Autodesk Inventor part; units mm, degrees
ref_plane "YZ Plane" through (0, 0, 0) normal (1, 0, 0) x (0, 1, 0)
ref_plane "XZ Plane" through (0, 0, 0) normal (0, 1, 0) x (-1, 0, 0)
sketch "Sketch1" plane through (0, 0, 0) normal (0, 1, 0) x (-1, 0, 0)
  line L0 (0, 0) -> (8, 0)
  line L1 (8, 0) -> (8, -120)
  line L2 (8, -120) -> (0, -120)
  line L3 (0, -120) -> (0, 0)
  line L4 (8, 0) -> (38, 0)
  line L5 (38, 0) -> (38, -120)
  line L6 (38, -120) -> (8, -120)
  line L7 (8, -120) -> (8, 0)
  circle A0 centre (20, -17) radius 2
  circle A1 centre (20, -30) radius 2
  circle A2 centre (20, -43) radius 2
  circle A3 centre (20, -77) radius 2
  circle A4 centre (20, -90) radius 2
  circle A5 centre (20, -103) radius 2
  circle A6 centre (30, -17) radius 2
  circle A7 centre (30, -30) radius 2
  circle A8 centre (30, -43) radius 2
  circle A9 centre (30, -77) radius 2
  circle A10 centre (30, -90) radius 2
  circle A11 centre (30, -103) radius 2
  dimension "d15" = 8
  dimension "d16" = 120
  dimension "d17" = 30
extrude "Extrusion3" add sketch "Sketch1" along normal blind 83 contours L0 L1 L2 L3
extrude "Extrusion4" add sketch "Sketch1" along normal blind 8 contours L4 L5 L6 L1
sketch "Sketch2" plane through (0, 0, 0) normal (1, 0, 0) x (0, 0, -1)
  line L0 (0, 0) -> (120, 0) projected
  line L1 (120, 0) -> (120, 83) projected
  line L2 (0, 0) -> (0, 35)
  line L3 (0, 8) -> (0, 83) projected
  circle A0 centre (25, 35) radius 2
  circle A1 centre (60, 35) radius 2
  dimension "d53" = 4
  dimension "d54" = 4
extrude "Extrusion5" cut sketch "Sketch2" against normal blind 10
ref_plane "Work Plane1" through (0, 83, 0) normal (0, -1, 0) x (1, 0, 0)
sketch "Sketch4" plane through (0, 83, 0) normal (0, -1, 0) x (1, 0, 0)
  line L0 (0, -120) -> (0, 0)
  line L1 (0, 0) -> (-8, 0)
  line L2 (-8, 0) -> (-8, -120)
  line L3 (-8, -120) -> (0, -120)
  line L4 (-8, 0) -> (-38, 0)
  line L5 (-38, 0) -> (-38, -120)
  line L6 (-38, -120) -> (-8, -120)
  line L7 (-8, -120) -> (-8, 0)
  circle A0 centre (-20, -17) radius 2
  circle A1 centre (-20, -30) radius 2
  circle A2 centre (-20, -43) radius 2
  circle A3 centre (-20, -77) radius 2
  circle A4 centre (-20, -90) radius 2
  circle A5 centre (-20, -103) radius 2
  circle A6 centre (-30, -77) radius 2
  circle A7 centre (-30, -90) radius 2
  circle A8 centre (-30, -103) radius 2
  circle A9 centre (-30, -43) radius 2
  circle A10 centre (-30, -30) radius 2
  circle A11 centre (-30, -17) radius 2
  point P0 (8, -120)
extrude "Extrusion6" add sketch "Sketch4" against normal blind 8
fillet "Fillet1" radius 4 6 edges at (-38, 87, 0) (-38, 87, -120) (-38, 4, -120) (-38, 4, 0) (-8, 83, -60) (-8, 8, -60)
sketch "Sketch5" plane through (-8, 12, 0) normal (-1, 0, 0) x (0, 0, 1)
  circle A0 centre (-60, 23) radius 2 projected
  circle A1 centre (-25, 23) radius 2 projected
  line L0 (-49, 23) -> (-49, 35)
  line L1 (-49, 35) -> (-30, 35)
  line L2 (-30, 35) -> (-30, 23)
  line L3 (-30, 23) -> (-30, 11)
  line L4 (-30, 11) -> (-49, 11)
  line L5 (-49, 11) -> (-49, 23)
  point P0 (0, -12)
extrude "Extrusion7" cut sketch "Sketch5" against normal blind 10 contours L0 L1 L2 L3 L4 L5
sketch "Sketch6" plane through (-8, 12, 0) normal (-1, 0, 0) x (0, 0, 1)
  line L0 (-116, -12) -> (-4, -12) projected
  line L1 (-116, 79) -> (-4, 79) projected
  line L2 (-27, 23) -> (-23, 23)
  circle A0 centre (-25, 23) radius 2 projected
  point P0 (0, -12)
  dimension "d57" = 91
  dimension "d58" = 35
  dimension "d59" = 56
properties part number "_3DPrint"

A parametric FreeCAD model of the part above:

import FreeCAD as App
import Part
import Sketcher
Q = App.Units.Quantity


def edges_at(feature, points):
    """Names of the edges that pass closest to the given points."""
    edges = feature.Shape.Edges
    near = lambda p: min(range(len(edges)), key=lambda i: edges[i].distToShape(Part.Vertex(*p))[0])
    return sorted({f"Edge{near(p) + 1}" for p in points})

doc = App.newDocument("Part")
params = doc.addObject("Spreadsheet::Sheet", "Params")
for row, (alias, value) in enumerate([
    ("sketch1_width", "8 mm"),
    ("sketch1_height", "120 mm"),
    ("pad1_length", "83 mm"),
    ("sketch2_width", "30 mm"),
    ("sketch2_height", "120 mm"),
    ("sketch2_diameter", "4 mm"),
    ("pad2_length", "8 mm"),
    ("sketch3_diameter", "4 mm"),
    ("pocket1_length", "10 mm"),
    ("sketch4_diameter", "4 mm"),
    ("sketch4_width", "38 mm"),
    ("sketch4_height", "120 mm"),
    ("pad3_length", "8 mm"),
    ("fillet_radius", "4 mm"),
    ("sketch5_width", "24 mm"),
    ("sketch5_height", "19 mm"),
    ("pocket2_length", "10 mm"),
], start=1):
    params.set(f"A{row}", alias)
    params.set(f"B{row}", "=" + value)
    params.setAlias(f"B{row}", alias)

body = doc.addObject("PartDesign::Body", "Body")

# Sketch on XZ plane
sketch1 = doc.addObject("Sketcher::SketchObject", "Sketch")
body.addObject(sketch1)
sketch1.AttachmentSupport = (doc.XZ_Plane, [""])
sketch1.MapMode = "FlatFace"
sketch1.addGeometry(Part.LineSegment(App.Vector(-8, 0, 0), App.Vector(0, 0, 0)), False)
sketch1.addGeometry(Part.LineSegment(App.Vector(0, 0, 0), App.Vector(0, -120, 0)), False)
sketch1.addGeometry(Part.LineSegment(App.Vector(0, -120, 0), App.Vector(-8, -120, 0)), False)
sketch1.addGeometry(Part.LineSegment(App.Vector(-8, -120, 0), App.Vector(-8, 0, 0)), False)
sketch1.addConstraint(Sketcher.Constraint("Coincident", 0, 2, 1, 1))
sketch1.addConstraint(Sketcher.Constraint("Coincident", 1, 2, 2, 1))
sketch1.addConstraint(Sketcher.Constraint("Coincident", 2, 2, 3, 1))
sketch1.addConstraint(Sketcher.Constraint("Coincident", 3, 2, 0, 1))
sketch1.addConstraint(Sketcher.Constraint("Horizontal", 0))
sketch1.addConstraint(Sketcher.Constraint("Vertical", 1))
sketch1.addConstraint(Sketcher.Constraint("Horizontal", 2))
sketch1.addConstraint(Sketcher.Constraint("Vertical", 3))
sketch1.addConstraint(Sketcher.Constraint("Coincident", 0, 2, -1, 1))
sketch1.addConstraint(Sketcher.Constraint("DistanceX", 0, 1, 0, 2, Q("8 mm")))
sketch1.addConstraint(Sketcher.Constraint("DistanceY", 1, 2, 1, 1, Q("120 mm")))
sketch1.setExpression("Constraints[9]", "Params.sketch1_width")
sketch1.setExpression("Constraints[10]", "Params.sketch1_height")
pad1 = doc.addObject("PartDesign::Pad", "Pad")
body.addObject(pad1)
pad1.Profile = sketch1
pad1.setExpression("Length", "Params.pad1_length")
pad1.Reversed = True

# Sketch on XZ plane
sketch2 = doc.addObject("Sketcher::SketchObject", "Sketch001")
body.addObject(sketch2)
sketch2.AttachmentSupport = (doc.XZ_Plane, [""])
sketch2.MapMode = "FlatFace"
sketch2.addGeometry(Part.LineSegment(App.Vector(-38, 0, 0), App.Vector(-8, 0, 0)), False)
sketch2.addGeometry(Part.LineSegment(App.Vector(-8, 0, 0), App.Vector(-8, -120, 0)), False)
sketch2.addGeometry(Part.LineSegment(App.Vector(-8, -120, 0), App.Vector(-38, -120, 0)), False)
sketch2.addGeometry(Part.LineSegment(App.Vector(-38, -120, 0), App.Vector(-38, 0, 0)), False)
sketch2.addGeometry(Part.Circle(App.Vector(-20, -103, 0), App.Vector(0, 0, 1), 2), False)
sketch2.addGeometry(Part.Circle(App.Vector(-30, -103, 0), App.Vector(0, 0, 1), 2), False)
sketch2.addGeometry(Part.Circle(App.Vector(-20, -90, 0), App.Vector(0, 0, 1), 2), False)
sketch2.addGeometry(Part.Circle(App.Vector(-20, -77, 0), App.Vector(0, 0, 1), 2), False)
sketch2.addGeometry(Part.Circle(App.Vector(-30, -90, 0), App.Vector(0, 0, 1), 2), False)
sketch2.addGeometry(Part.Circle(App.Vector(-30, -77, 0), App.Vector(0, 0, 1), 2), False)
sketch2.addGeometry(Part.Circle(App.Vector(-20, -43, 0), App.Vector(0, 0, 1), 2), False)
sketch2.addGeometry(Part.Circle(App.Vector(-30, -43, 0), App.Vector(0, 0, 1), 2), False)
sketch2.addGeometry(Part.Circle(App.Vector(-20, -30, 0), App.Vector(0, 0, 1), 2), False)
sketch2.addGeometry(Part.Circle(App.Vector(-20, -17, 0), App.Vector(0, 0, 1), 2), False)
sketch2.addGeometry(Part.Circle(App.Vector(-30, -30, 0), App.Vector(0, 0, 1), 2), False)
sketch2.addGeometry(Part.Circle(App.Vector(-30, -17, 0), App.Vector(0, 0, 1), 2), False)
sketch2.addConstraint(Sketcher.Constraint("Coincident", 0, 2, 1, 1))
sketch2.addConstraint(Sketcher.Constraint("Coincident", 1, 2, 2, 1))
sketch2.addConstraint(Sketcher.Constraint("Coincident", 2, 2, 3, 1))
sketch2.addConstraint(Sketcher.Constraint("Coincident", 3, 2, 0, 1))
sketch2.addConstraint(Sketcher.Constraint("Horizontal", 0))
sketch2.addConstraint(Sketcher.Constraint("Vertical", 1))
sketch2.addConstraint(Sketcher.Constraint("Horizontal", 2))
sketch2.addConstraint(Sketcher.Constraint("Vertical", 3))
sketch2.addConstraint(Sketcher.Constraint("Equal", 4, 5))
sketch2.addConstraint(Sketcher.Constraint("Equal", 5, 6))
sketch2.addConstraint(Sketcher.Constraint("Equal", 6, 7))
sketch2.addConstraint(Sketcher.Constraint("Equal", 7, 8))
sketch2.addConstraint(Sketcher.Constraint("Equal", 8, 9))
sketch2.addConstraint(Sketcher.Constraint("Equal", 9, 10))
sketch2.addConstraint(Sketcher.Constraint("Equal", 10, 11))
sketch2.addConstraint(Sketcher.Constraint("Equal", 11, 12))
sketch2.addConstraint(Sketcher.Constraint("Equal", 12, 13))
sketch2.addConstraint(Sketcher.Constraint("Equal", 13, 14))
sketch2.addConstraint(Sketcher.Constraint("Equal", 14, 15))
sketch2.addConstraint(Sketcher.Constraint("PointOnObject", 0, 2, -1))
sketch2.addConstraint(Sketcher.Constraint("Horizontal", 4, 3, 5, 3))
sketch2.addConstraint(Sketcher.Constraint("Horizontal", 6, 3, 8, 3))
sketch2.addConstraint(Sketcher.Constraint("Horizontal", 7, 3, 9, 3))
sketch2.addConstraint(Sketcher.Constraint("Horizontal", 10, 3, 11, 3))
sketch2.addConstraint(Sketcher.Constraint("Horizontal", 12, 3, 14, 3))
sketch2.addConstraint(Sketcher.Constraint("Horizontal", 13, 3, 15, 3))
sketch2.addConstraint(Sketcher.Constraint("Vertical", 4, 3, 6, 3))
sketch2.addConstraint(Sketcher.Constraint("Vertical", 6, 3, 7, 3))
sketch2.addConstraint(Sketcher.Constraint("Vertical", 5, 3, 8, 3))
sketch2.addConstraint(Sketcher.Constraint("Vertical", 8, 3, 9, 3))
sketch2.addConstraint(Sketcher.Constraint("Vertical", 7, 3, 10, 3))
sketch2.addConstraint(Sketcher.Constraint("Vertical", 9, 3, 11, 3))
sketch2.addConstraint(Sketcher.Constraint("Vertical", 10, 3, 12, 3))
sketch2.addConstraint(Sketcher.Constraint("Vertical", 12, 3, 13, 3))
sketch2.addConstraint(Sketcher.Constraint("Vertical", 11, 3, 14, 3))
sketch2.addConstraint(Sketcher.Constraint("Vertical", 14, 3, 15, 3))
sketch2.addConstraint(Sketcher.Constraint("DistanceX", 0, 1, 0, 2, Q("30 mm")))
sketch2.addConstraint(Sketcher.Constraint("DistanceY", 1, 2, 1, 1, Q("120 mm")))
sketch2.addConstraint(Sketcher.Constraint("Diameter", 4, Q("4 mm")))
sketch2.addConstraint(Sketcher.Constraint("DistanceX", 5, 3, -1, 1, Q("30 mm")))
sketch2.addConstraint(Sketcher.Constraint("DistanceY", 12, 3, -1, 1, Q("30 mm")))
sketch2.addConstraint(Sketcher.Constraint("DistanceX", 0, 2, -1, 1, Q("8 mm")))
sketch2.addConstraint(Sketcher.Constraint("DistanceY", 1, 2, 6, 3, Q("30 mm")))
sketch2.addConstraint(Sketcher.Constraint("DistanceX", 4, 3, -1, 1, Q("20 mm")))
sketch2.addConstraint(Sketcher.Constraint("DistanceY", 4, 3, -1, 1, Q("103 mm")))
sketch2.addConstraint(Sketcher.Constraint("DistanceY", 7, 3, -1, 1, Q("77 mm")))
sketch2.addConstraint(Sketcher.Constraint("DistanceY", 10, 3, -1, 1, Q("43 mm")))
sketch2.addConstraint(Sketcher.Constraint("DistanceY", 13, 3, -1, 1, Q("17 mm")))
sketch2.setExpression("Constraints[36]", "Params.sketch2_width")
sketch2.setExpression("Constraints[37]", "Params.sketch2_height")
sketch2.setExpression("Constraints[38]", "Params.sketch2_diameter")
pad2 = doc.addObject("PartDesign::Pad", "Pad001")
body.addObject(pad2)
pad2.Profile = sketch2
pad2.setExpression("Length", "Params.pad2_length")
pad2.Reversed = True

# Sketch on YZ plane
sketch3 = doc.addObject("Sketcher::SketchObject", "Sketch002")
body.addObject(sketch3)
sketch3.AttachmentSupport = (doc.YZ_Plane, [""])
sketch3.MapMode = "FlatFace"
sketch3.addGeometry(Part.Circle(App.Vector(35, -25, 0), App.Vector(0, 0, 1), 2), False)
sketch3.addGeometry(Part.Circle(App.Vector(35, -60, 0), App.Vector(0, 0, 1), 2), False)
sketch3.addConstraint(Sketcher.Constraint("Equal", 0, 1))
sketch3.addConstraint(Sketcher.Constraint("Vertical", 0, 3, 1, 3))
sketch3.addConstraint(Sketcher.Constraint("Diameter", 0, Q("4 mm")))
sketch3.addConstraint(Sketcher.Constraint("DistanceX", -1, 1, 0, 3, Q("35 mm")))
sketch3.addConstraint(Sketcher.Constraint("DistanceY", 0, 3, -1, 1, Q("25 mm")))
sketch3.addConstraint(Sketcher.Constraint("DistanceY", 1, 3, -1, 1, Q("60 mm")))
sketch3.setExpression("Constraints[2]", "Params.sketch3_diameter")
pocket1 = doc.addObject("PartDesign::Pocket", "Pocket")
body.addObject(pocket1)
pocket1.Profile = sketch3
pocket1.setExpression("Length", "Params.pocket1_length")

# Sketch on XZ plane
sketch4 = doc.addObject("Sketcher::SketchObject", "Sketch003")
body.addObject(sketch4)
sketch4.AttachmentSupport = (doc.XZ_Plane, [""])
sketch4.MapMode = "FlatFace"
sketch4.AttachmentOffset = App.Placement(App.Vector(0, 0, -83), App.Rotation())
sketch4.addGeometry(Part.LineSegment(App.Vector(0, -120, 0), App.Vector(0, 0, 0)), False)
sketch4.addGeometry(Part.LineSegment(App.Vector(0, 0, 0), App.Vector(-38, 0, 0)), False)
sketch4.addGeometry(Part.LineSegment(App.Vector(-38, 0, 0), App.Vector(-38, -120, 0)), False)
sketch4.addGeometry(Part.LineSegment(App.Vector(-38, -120, 0), App.Vector(0, -120, 0)), False)
sketch4.addGeometry(Part.Circle(App.Vector(-20, -17, 0), App.Vector(0, 0, 1), 2), False)
sketch4.addGeometry(Part.Circle(App.Vector(-30, -103, 0), App.Vector(0, 0, 1), 2), False)
sketch4.addGeometry(Part.Circle(App.Vector(-20, -103, 0), App.Vector(0, 0, 1), 2), False)
sketch4.addGeometry(Part.Circle(App.Vector(-30, -90, 0), App.Vector(0, 0, 1), 2), False)
sketch4.addGeometry(Part.Circle(App.Vector(-30, -77, 0), App.Vector(0, 0, 1), 2), False)
sketch4.addGeometry(Part.Circle(App.Vector(-20, -90, 0), App.Vector(0, 0, 1), 2), False)
sketch4.addGeometry(Part.Circle(App.Vector(-20, -77, 0), App.Vector(0, 0, 1), 2), False)
sketch4.addGeometry(Part.Circle(App.Vector(-30, -43, 0), App.Vector(0, 0, 1), 2), False)
sketch4.addGeometry(Part.Circle(App.Vector(-20, -43, 0), App.Vector(0, 0, 1), 2), False)
sketch4.addGeometry(Part.Circle(App.Vector(-30, -30, 0), App.Vector(0, 0, 1), 2), False)
sketch4.addGeometry(Part.Circle(App.Vector(-30, -17, 0), App.Vector(0, 0, 1), 2), False)
sketch4.addGeometry(Part.Circle(App.Vector(-20, -30, 0), App.Vector(0, 0, 1), 2), False)
sketch4.addConstraint(Sketcher.Constraint("Coincident", 0, 2, 1, 1))
sketch4.addConstraint(Sketcher.Constraint("Coincident", 1, 2, 2, 1))
sketch4.addConstraint(Sketcher.Constraint("Coincident", 2, 2, 3, 1))
sketch4.addConstraint(Sketcher.Constraint("Coincident", 3, 2, 0, 1))
sketch4.addConstraint(Sketcher.Constraint("Vertical", 0))
sketch4.addConstraint(Sketcher.Constraint("Horizontal", 1))
sketch4.addConstraint(Sketcher.Constraint("Vertical", 2))
sketch4.addConstraint(Sketcher.Constraint("Horizontal", 3))
sketch4.addConstraint(Sketcher.Constraint("Coincident", 0, 2, -1, 1))
sketch4.addConstraint(Sketcher.Constraint("Equal", 4, 5))
sketch4.addConstraint(Sketcher.Constraint("Equal", 5, 6))
sketch4.addConstraint(Sketcher.Constraint("Equal", 6, 7))
sketch4.addConstraint(Sketcher.Constraint("Equal", 7, 8))
sketch4.addConstraint(Sketcher.Constraint("Equal", 8, 9))
sketch4.addConstraint(Sketcher.Constraint("Equal", 9, 10))
sketch4.addConstraint(Sketcher.Constraint("Equal", 10, 11))
sketch4.addConstraint(Sketcher.Constraint("Equal", 11, 12))
sketch4.addConstraint(Sketcher.Constraint("Equal", 12, 13))
sketch4.addConstraint(Sketcher.Constraint("Equal", 13, 14))
sketch4.addConstraint(Sketcher.Constraint("Equal", 14, 15))
sketch4.addConstraint(Sketcher.Constraint("Horizontal", 5, 3, 6, 3))
sketch4.addConstraint(Sketcher.Constraint("Horizontal", 7, 3, 9, 3))
sketch4.addConstraint(Sketcher.Constraint("Horizontal", 8, 3, 10, 3))
sketch4.addConstraint(Sketcher.Constraint("Horizontal", 11, 3, 12, 3))
sketch4.addConstraint(Sketcher.Constraint("Horizontal", 4, 3, 14, 3))
sketch4.addConstraint(Sketcher.Constraint("Horizontal", 13, 3, 15, 3))
sketch4.addConstraint(Sketcher.Constraint("Vertical", 4, 3, 6, 3))
sketch4.addConstraint(Sketcher.Constraint("Vertical", 5, 3, 7, 3))
sketch4.addConstraint(Sketcher.Constraint("Vertical", 7, 3, 8, 3))
sketch4.addConstraint(Sketcher.Constraint("Vertical", 6, 3, 9, 3))
sketch4.addConstraint(Sketcher.Constraint("Vertical", 9, 3, 10, 3))
sketch4.addConstraint(Sketcher.Constraint("Vertical", 8, 3, 11, 3))
sketch4.addConstraint(Sketcher.Constraint("Vertical", 10, 3, 12, 3))
sketch4.addConstraint(Sketcher.Constraint("Vertical", 11, 3, 13, 3))
sketch4.addConstraint(Sketcher.Constraint("Vertical", 13, 3, 14, 3))
sketch4.addConstraint(Sketcher.Constraint("Vertical", 12, 3, 15, 3))
sketch4.addConstraint(Sketcher.Constraint("Diameter", 4, Q("4 mm")))
sketch4.addConstraint(Sketcher.Constraint("DistanceX", 1, 2, 1, 1, Q("38 mm")))
sketch4.addConstraint(Sketcher.Constraint("DistanceY", 0, 1, 0, 2, Q("120 mm")))
sketch4.addConstraint(Sketcher.Constraint("DistanceX", 4, 3, -1, 1, Q("20 mm")))
sketch4.addConstraint(Sketcher.Constraint("DistanceY", 4, 3, -1, 1, Q("17 mm")))
sketch4.addConstraint(Sketcher.Constraint("DistanceX", 5, 3, -1, 1, Q("30 mm")))
sketch4.addConstraint(Sketcher.Constraint("DistanceY", 5, 3, -1, 1, Q("103 mm")))
sketch4.addConstraint(Sketcher.Constraint("DistanceY", 7, 3, -1, 1, Q("90 mm")))
sketch4.addConstraint(Sketcher.Constraint("DistanceY", 8, 3, -1, 1, Q("77 mm")))
sketch4.addConstraint(Sketcher.Constraint("DistanceY", 11, 3, -1, 1, Q("43 mm")))
sketch4.addConstraint(Sketcher.Constraint("DistanceY", 13, 3, -1, 1, Q("30 mm")))
sketch4.setExpression("Constraints[36]", "Params.sketch4_diameter")
sketch4.setExpression("Constraints[37]", "Params.sketch4_width")
sketch4.setExpression("Constraints[38]", "Params.sketch4_height")
pad3 = doc.addObject("PartDesign::Pad", "Pad002")
body.addObject(pad3)
pad3.Profile = sketch4
pad3.setExpression("Length", "Params.pad3_length")
pad3.Reversed = True
doc.recompute()

fillet = doc.addObject("PartDesign::Fillet", "Fillet")
body.addObject(fillet)
fillet.Base = (pad3, edges_at(pad3, [
    (-38, 87, 0),
    (-38, 87, -120),
    (-38, 4, -120),
    (-38, 4, 0),
    (-8, 83, -60),
    (-8, 8, -60),
]))
fillet.setExpression("Radius", "Params.fillet_radius")

# Sketch on YZ plane
sketch5 = doc.addObject("Sketcher::SketchObject", "Sketch004")
body.addObject(sketch5)
sketch5.AttachmentSupport = (doc.YZ_Plane, [""])
sketch5.MapMode = "FlatFace"
sketch5.AttachmentOffset = App.Placement(App.Vector(0, 0, -8), App.Rotation())
sketch5.addGeometry(Part.LineSegment(App.Vector(47, -49, 0), App.Vector(23, -49, 0)), False)
sketch5.addGeometry(Part.LineSegment(App.Vector(23, -49, 0), App.Vector(23, -30, 0)), False)
sketch5.addGeometry(Part.LineSegment(App.Vector(23, -30, 0), App.Vector(47, -30, 0)), False)
sketch5.addGeometry(Part.LineSegment(App.Vector(47, -30, 0), App.Vector(47, -49, 0)), False)
sketch5.addConstraint(Sketcher.Constraint("Coincident", 0, 2, 1, 1))
sketch5.addConstraint(Sketcher.Constraint("Coincident", 1, 2, 2, 1))
sketch5.addConstraint(Sketcher.Constraint("Coincident", 2, 2, 3, 1))
sketch5.addConstraint(Sketcher.Constraint("Coincident", 3, 2, 0, 1))
sketch5.addConstraint(Sketcher.Constraint("Horizontal", 0))
sketch5.addConstraint(Sketcher.Constraint("Vertical", 1))
sketch5.addConstraint(Sketcher.Constraint("Horizontal", 2))
sketch5.addConstraint(Sketcher.Constraint("Vertical", 3))
sketch5.addConstraint(Sketcher.Constraint("DistanceX", 0, 2, 0, 1, Q("24 mm")))
sketch5.addConstraint(Sketcher.Constraint("DistanceY", 1, 1, 1, 2, Q("19 mm")))
sketch5.addConstraint(Sketcher.Constraint("DistanceX", -1, 1, 0, 2, Q("23 mm")))
sketch5.addConstraint(Sketcher.Constraint("DistanceY", 0, 2, -1, 1, Q("49 mm")))
sketch5.setExpression("Constraints[8]", "Params.sketch5_width")
sketch5.setExpression("Constraints[9]", "Params.sketch5_height")
pocket2 = doc.addObject("PartDesign::Pocket", "Pocket001")
body.addObject(pocket2)
pocket2.Profile = sketch5
pocket2.setExpression("Length", "Params.pocket2_length")
pocket2.Reversed = True

doc.recompute()
